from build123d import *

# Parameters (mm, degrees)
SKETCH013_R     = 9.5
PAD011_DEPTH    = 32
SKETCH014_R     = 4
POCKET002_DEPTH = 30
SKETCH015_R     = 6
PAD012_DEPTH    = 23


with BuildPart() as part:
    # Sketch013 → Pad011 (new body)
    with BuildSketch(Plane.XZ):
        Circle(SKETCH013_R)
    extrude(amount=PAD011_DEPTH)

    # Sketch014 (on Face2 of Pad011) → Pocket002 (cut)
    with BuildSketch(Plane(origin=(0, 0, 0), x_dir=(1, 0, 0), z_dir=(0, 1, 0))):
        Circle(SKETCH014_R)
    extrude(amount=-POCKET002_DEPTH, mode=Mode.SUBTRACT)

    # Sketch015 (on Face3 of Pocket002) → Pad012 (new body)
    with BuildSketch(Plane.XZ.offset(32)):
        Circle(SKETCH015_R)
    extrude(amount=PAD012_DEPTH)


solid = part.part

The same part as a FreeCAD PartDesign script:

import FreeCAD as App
import Part
import Sketcher
from FreeCAD import Vector
Q = App.Units.Quantity

doc = App.newDocument("Part")
body = doc.addObject("PartDesign::Body", "Body")

# Sketch on XZ plane
sketch1 = body.newObject("Sketcher::SketchObject", "Sketch")
sketch1.AttachmentSupport = (doc.getObject("XZ_Plane"), [""])
sketch1.MapMode = "FlatFace"
sketch1.addGeometry(Part.Circle(Vector(0, 0, 0), Vector(0, 0, 1), 10), False)
sketch1.addConstraint([
    Sketcher.Constraint("Coincident", 0, 3, -1, 1),
    Sketcher.Constraint("Diameter", 0, Q("19 mm")),
])
pad1 = body.newObject("PartDesign::Pad", "Pad")
pad1.Profile = sketch1
pad1.Length = 32

# Sketch on XZ plane
sketch2 = body.newObject("Sketcher::SketchObject", "Sketch001")
sketch2.AttachmentSupport = (doc.getObject("XZ_Plane"), [""])
sketch2.MapMode = "FlatFace"
sketch2.addGeometry(Part.Circle(Vector(0, 0, 0), Vector(0, 0, 1), 4), False)
sketch2.addConstraint([
    Sketcher.Constraint("Coincident", 0, 3, -1, 1),
    Sketcher.Constraint("Diameter", 0, Q("8 mm")),
])
pocket1 = body.newObject("PartDesign::Pocket", "Pocket")
pocket1.Profile = sketch2
pocket1.Length = 30
pocket1.Reversed = True

# Sketch on XZ plane
sketch3 = body.newObject("Sketcher::SketchObject", "Sketch002")
sketch3.AttachmentSupport = (doc.getObject("XZ_Plane"), [""])
sketch3.MapMode = "FlatFace"
sketch3.AttachmentOffset = App.Placement(Vector(0, 0, 32), App.Rotation())
sketch3.addGeometry(Part.Circle(Vector(0, 0, 0), Vector(0, 0, 1), 6), False)
sketch3.addConstraint([
    Sketcher.Constraint("Coincident", 0, 3, -1, 1),
    Sketcher.Constraint("Diameter", 0, Q("12 mm")),
])
pad2 = body.newObject("PartDesign::Pad", "Pad001")
pad2.Profile = sketch3
pad2.Length = 23

doc.recompute()
